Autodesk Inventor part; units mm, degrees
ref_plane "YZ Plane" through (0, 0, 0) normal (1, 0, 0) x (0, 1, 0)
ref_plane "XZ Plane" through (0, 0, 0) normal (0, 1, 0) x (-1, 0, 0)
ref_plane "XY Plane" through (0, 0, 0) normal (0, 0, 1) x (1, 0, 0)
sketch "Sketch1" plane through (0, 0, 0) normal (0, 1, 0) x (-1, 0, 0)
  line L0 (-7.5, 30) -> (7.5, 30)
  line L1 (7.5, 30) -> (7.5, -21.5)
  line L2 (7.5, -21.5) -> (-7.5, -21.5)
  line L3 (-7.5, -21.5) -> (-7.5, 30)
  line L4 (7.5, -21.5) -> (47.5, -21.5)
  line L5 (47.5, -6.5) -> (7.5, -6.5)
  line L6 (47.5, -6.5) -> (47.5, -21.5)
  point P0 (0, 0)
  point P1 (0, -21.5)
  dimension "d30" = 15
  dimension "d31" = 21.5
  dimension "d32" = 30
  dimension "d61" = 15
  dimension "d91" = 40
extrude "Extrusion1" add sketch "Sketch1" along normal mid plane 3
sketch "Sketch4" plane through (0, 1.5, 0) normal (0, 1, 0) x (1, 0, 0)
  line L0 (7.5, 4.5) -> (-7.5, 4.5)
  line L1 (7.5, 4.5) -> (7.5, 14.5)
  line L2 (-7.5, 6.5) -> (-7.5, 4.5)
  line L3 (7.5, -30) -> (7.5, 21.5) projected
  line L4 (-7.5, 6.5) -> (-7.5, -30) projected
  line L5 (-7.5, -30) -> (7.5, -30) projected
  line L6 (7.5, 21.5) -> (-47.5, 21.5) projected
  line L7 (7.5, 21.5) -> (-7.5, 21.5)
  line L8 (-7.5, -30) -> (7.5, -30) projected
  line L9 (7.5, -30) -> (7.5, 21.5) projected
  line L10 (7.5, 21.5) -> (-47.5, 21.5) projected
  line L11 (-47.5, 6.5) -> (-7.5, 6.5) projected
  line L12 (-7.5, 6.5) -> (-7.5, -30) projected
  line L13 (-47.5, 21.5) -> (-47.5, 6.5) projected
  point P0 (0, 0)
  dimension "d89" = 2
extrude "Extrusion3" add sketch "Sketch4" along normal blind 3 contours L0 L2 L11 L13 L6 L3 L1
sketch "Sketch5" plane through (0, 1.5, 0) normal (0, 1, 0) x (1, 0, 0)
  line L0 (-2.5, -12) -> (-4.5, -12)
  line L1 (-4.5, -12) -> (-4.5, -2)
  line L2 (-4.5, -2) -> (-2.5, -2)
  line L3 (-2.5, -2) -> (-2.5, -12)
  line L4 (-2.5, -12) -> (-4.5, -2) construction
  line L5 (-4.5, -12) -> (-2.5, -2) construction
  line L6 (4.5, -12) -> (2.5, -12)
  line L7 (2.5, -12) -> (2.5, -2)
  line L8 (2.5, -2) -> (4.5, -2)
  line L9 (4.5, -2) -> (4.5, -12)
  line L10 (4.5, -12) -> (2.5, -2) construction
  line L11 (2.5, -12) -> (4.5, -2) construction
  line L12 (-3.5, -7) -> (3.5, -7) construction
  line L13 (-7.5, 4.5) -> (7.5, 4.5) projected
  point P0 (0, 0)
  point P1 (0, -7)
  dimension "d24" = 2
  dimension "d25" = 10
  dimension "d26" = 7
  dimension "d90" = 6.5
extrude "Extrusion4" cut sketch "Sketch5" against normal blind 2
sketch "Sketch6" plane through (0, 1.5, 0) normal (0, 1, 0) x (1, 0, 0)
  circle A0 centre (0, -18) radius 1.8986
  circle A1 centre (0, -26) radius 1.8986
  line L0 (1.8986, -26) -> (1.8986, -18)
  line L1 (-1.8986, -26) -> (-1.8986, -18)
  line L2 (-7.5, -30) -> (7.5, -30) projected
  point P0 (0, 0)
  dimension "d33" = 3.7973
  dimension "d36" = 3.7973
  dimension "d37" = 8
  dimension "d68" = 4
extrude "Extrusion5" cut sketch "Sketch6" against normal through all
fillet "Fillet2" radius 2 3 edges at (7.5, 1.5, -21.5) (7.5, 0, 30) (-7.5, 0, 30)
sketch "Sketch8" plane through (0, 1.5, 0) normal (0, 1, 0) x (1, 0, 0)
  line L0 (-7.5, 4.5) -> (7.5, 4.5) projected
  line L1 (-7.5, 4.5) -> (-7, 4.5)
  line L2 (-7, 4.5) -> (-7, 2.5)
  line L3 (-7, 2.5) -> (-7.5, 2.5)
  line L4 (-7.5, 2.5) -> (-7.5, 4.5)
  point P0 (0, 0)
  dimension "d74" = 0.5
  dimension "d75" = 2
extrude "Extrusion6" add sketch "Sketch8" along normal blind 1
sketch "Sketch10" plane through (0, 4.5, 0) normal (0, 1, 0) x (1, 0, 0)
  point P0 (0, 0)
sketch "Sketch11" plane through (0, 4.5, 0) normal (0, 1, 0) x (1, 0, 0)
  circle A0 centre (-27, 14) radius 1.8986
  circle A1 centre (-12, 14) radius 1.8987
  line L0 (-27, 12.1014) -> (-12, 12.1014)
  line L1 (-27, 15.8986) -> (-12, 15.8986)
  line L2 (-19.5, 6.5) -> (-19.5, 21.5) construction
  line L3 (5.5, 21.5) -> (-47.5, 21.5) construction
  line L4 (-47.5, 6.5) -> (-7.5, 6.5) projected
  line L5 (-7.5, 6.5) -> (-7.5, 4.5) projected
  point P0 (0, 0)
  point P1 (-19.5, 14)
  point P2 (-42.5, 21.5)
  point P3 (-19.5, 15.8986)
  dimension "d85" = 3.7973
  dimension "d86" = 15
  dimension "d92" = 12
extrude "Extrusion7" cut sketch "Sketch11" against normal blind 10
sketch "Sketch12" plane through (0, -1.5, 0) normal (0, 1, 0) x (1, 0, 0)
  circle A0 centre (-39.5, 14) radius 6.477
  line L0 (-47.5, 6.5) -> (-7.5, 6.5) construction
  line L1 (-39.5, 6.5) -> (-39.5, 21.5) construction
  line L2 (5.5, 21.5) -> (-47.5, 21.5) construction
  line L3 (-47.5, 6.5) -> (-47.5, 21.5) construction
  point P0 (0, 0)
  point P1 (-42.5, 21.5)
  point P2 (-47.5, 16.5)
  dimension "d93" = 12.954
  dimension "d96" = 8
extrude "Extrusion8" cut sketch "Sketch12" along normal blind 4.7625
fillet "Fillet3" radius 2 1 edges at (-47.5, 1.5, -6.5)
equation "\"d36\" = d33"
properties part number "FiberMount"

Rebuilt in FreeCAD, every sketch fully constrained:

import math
import FreeCAD as App
import Part
import Sketcher


def edges_at(feature, points):
    """Names of the edges that pass closest to the given points."""
    edges = feature.Shape.Edges
    near = lambda p: min(range(len(edges)), key=lambda i: edges[i].distToShape(Part.Vertex(*p))[0])
    return sorted({f"Edge{near(p) + 1}" for p in points})


def add_polygon(sketch, points):
    """Adds a closed chain of lines whose ends are joined by coincident constraints."""
    first, n = sketch.GeometryCount, len(points)
    for a, b in zip(points, points[1:] + points[:1]):
        sketch.addGeometry(Part.LineSegment(App.Vector(*a, 0), App.Vector(*b, 0)), False)
    for i in range(n):
        sketch.addConstraint(Sketcher.Constraint("Coincident", first + i, 2, first + (i + 1) % n, 1))

doc = App.newDocument("Part")
body = doc.addObject("PartDesign::Body", "Body")

sketch1 = body.newObject("Sketcher::SketchObject", "Sketch")
sketch1.AttachmentSupport = (doc.getObject("XZ_Plane"), [""])
sketch1.MapMode = "FlatFace"
add_polygon(sketch1, [(-7.5, 30), (7.5, 30), (7.5, -21.5), (-47.5, -21.5), (-47.5, -6.5), (-7.5, -6.5)])
sketch1.addConstraint([
    Sketcher.Constraint("Horizontal", 0),
    Sketcher.Constraint("Vertical", 1),
    Sketcher.Constraint("Horizontal", 2),
    Sketcher.Constraint("Vertical", 3),
    Sketcher.Constraint("Horizontal", 4),
    Sketcher.Constraint("Vertical", 5),
    Sketcher.Constraint("Equal", 0, 3),
    Sketcher.Constraint("DistanceX", 0, 1, 0, 2, 15.0),
    Sketcher.Constraint("DistanceX", 4, 1, 4, 2, 40.0),
    Sketcher.Constraint("DistanceY", -1, 1, 0, 2, 30.0),
    Sketcher.Constraint("DistanceY", 1, 2, -1, 1, 21.5),
    Sketcher.Constraint("DistanceX", -1, 1, 0, 2, 7.5),
])
pad1 = body.newObject("PartDesign::Pad", "Pad")
pad1.Profile = sketch1
pad1.Length = 3
pad1.Midplane = True

sketch2 = body.newObject("Sketcher::SketchObject", "Sketch001")
sketch2.AttachmentSupport = (doc.getObject("XZ_Plane"), [""])
sketch2.MapMode = "FlatFace"
sketch2.AttachmentOffset = App.Placement(App.Vector(0, 0, -1.5), App.Rotation())
add_polygon(sketch2, [(-7.5, -4.5), (7.5, -4.5), (7.5, -21.5), (-47.5, -21.5), (-47.5, -6.5), (-7.5, -6.5)])
sketch2.addConstraint([
    Sketcher.Constraint("Horizontal", 0),
    Sketcher.Constraint("Vertical", 1),
    Sketcher.Constraint("Horizontal", 2),
    Sketcher.Constraint("Vertical", 3),
    Sketcher.Constraint("Horizontal", 4),
    Sketcher.Constraint("Vertical", 5),
    Sketcher.Constraint("Equal", 0, 3),
    Sketcher.Constraint("DistanceY", 5, 1, 5, 2, 2.0),
    Sketcher.Constraint("DistanceX", 0, 1, 0, 2, 15.0),
    Sketcher.Constraint("DistanceX", 2, 2, 2, 1, 55.0),
    Sketcher.Constraint("DistanceX", -1, 1, 0, 2, 7.5),
    Sketcher.Constraint("DistanceY", 0, 2, -1, 1, 4.5),
])
pad2 = body.newObject("PartDesign::Pad", "Pad001")
pad2.Profile = sketch2
pad2.Length = 3
pad2.Reversed = True

sketch3 = body.newObject("Sketcher::SketchObject", "Sketch002")
sketch3.AttachmentSupport = (doc.getObject("XZ_Plane"), [""])
sketch3.MapMode = "FlatFace"
sketch3.AttachmentOffset = App.Placement(App.Vector(0, 0, -1.5), App.Rotation())
add_polygon(sketch3, [(-4.5, 12), (-2.5, 12), (-2.5, 2), (-4.5, 2)])
add_polygon(sketch3, [(2.5, 12), (4.5, 12), (4.5, 2), (2.5, 2)])
sketch3.addConstraint([
    Sketcher.Constraint("Horizontal", 0),
    Sketcher.Constraint("Vertical", 1),
    Sketcher.Constraint("Horizontal", 2),
    Sketcher.Constraint("Vertical", 3),
    Sketcher.Constraint("Horizontal", 4),
    Sketcher.Constraint("Vertical", 5),
    Sketcher.Constraint("Horizontal", 6),
    Sketcher.Constraint("Vertical", 7),
    Sketcher.Constraint("Symmetric", 3, 2, 4, 2, -2),
    Sketcher.Constraint("Symmetric", 1, 2, 6, 2, -2),
    Sketcher.Constraint("DistanceX", 0, 1, 0, 2, 2.0),
    Sketcher.Constraint("DistanceY", 1, 2, 1, 1, 10.0),
    Sketcher.Constraint("DistanceY", -1, 1, 1, 2, 2.0),
    Sketcher.Constraint("DistanceX", 0, 2, 4, 2, 7.0),
])
pocket1 = body.newObject("PartDesign::Pocket", "Pocket")
pocket1.Profile = sketch3
pocket1.Length = 2
pocket1.Reversed = True

sketch4 = body.newObject("Sketcher::SketchObject", "Sketch003")
sketch4.AttachmentSupport = (doc.getObject("XZ_Plane"), [""])
sketch4.MapMode = "FlatFace"
sketch4.AttachmentOffset = App.Placement(App.Vector(0, 0, -1.5), App.Rotation())
sketch4.addGeometry([
    Part.ArcOfCircle(Part.Circle(App.Vector(0, 18, 0), App.Vector(0, 0, 1), 1.8986), math.radians(180), math.radians(360)),
    Part.LineSegment(App.Vector(-1.8986, 18, 0), App.Vector(-1.8986, 26, 0)),
    Part.ArcOfCircle(Part.Circle(App.Vector(0, 26, 0), App.Vector(0, 0, 1), 1.8986), math.radians(0), math.radians(180)),
    Part.LineSegment(App.Vector(1.8986, 26, 0), App.Vector(1.8986, 18, 0)),
], False)
sketch4.addConstraint([
    Sketcher.Constraint("Tangent", 0, 1, 1, 1),
    Sketcher.Constraint("Tangent", 1, 2, 2, 2),
    Sketcher.Constraint("Tangent", 2, 1, 3, 1),
    Sketcher.Constraint("Tangent", 3, 2, 0, 2),
    Sketcher.Constraint("Vertical", 1),
    Sketcher.Constraint("Vertical", 3),
    Sketcher.Constraint("PointOnObject", 0, 3, -2),
    Sketcher.Constraint("DistanceY", 1, 1, 1, 2, 8.0),
    Sketcher.Constraint("Radius", 0, 1.8986),
    Sketcher.Constraint("DistanceY", -1, 1, 0, 3, 18.0),
])
pocket2 = body.newObject("PartDesign::Pocket", "Pocket001")
pocket2.Profile = sketch4
pocket2.Type = "ThroughAll"
pocket2.Reversed = True
doc.recompute()

fillet = body.newObject("PartDesign::Fillet", "Fillet")
fillet.Base = (pocket2, edges_at(pocket2, [(7.5, 1.5, -21.5), (7.5, 0, 30), (-7.5, 0, 30)]))
fillet.Radius = 2

sketch5 = body.newObject("Sketcher::SketchObject", "Sketch004")
sketch5.AttachmentSupport = (doc.getObject("XZ_Plane"), [""])
sketch5.MapMode = "FlatFace"
sketch5.AttachmentOffset = App.Placement(App.Vector(0, 0, -1.5), App.Rotation())
add_polygon(sketch5, [(-7, -4.5), (-7.5, -4.5), (-7.5, -2.5), (-7, -2.5)])
sketch5.addConstraint([
    Sketcher.Constraint("Horizontal", 0),
    Sketcher.Constraint("Vertical", 1),
    Sketcher.Constraint("Horizontal", 2),
    Sketcher.Constraint("Vertical", 3),
    Sketcher.Constraint("DistanceY", 1, 1, 1, 2, 2.0),
    Sketcher.Constraint("DistanceX", 0, 2, 0, 1, 0.5),
    Sketcher.Constraint("DistanceX", 2, 2, -1, 1, 7.0),
    Sketcher.Constraint("DistanceY", 0, 2, -1, 1, 4.5),
])
pad3 = body.newObject("PartDesign::Pad", "Pad002")
pad3.Profile = sketch5
pad3.Length = 1
pad3.Reversed = True

sketch6 = body.newObject("Sketcher::SketchObject", "Sketch005")
sketch6.AttachmentSupport = (doc.getObject("XZ_Plane"), [""])
sketch6.MapMode = "FlatFace"
sketch6.AttachmentOffset = App.Placement(App.Vector(0, 0, -4.5), App.Rotation())
sketch6.addGeometry([
    Part.ArcOfCircle(Part.Circle(App.Vector(-27, -14, 0), App.Vector(0, 0, 1), 1.8986), math.radians(90), math.radians(270)),
    Part.LineSegment(App.Vector(-27, -12.1014, 0), App.Vector(-12, -12.1014, 0)),
    Part.ArcOfCircle(Part.Circle(App.Vector(-12, -14, 0), App.Vector(0, 0, 1), 1.8987), math.radians(-90), math.radians(90)),
    Part.LineSegment(App.Vector(-12, -15.8986, 0), App.Vector(-27, -15.8986, 0)),
], False)
sketch6.addConstraint([
    Sketcher.Constraint("Tangent", 0, 1, 1, 1),
    Sketcher.Constraint("Tangent", 1, 2, 2, 2),
    Sketcher.Constraint("Tangent", 2, 1, 3, 1),
    Sketcher.Constraint("Tangent", 3, 2, 0, 2),
    Sketcher.Constraint("Horizontal", 1),
    Sketcher.Constraint("Horizontal", 3),
    Sketcher.Constraint("DistanceX", 1, 1, 1, 2, 15.0),
    Sketcher.Constraint("DistanceX", 2, 3, -1, 1, 12.0),
    Sketcher.Constraint("Radius", 0, 1.8986),
    Sketcher.Constraint("DistanceY", 0, 3, -1, 1, 14.0),
])
pocket3 = body.newObject("PartDesign::Pocket", "Pocket002")
pocket3.Profile = sketch6
pocket3.Length = 10
pocket3.Reversed = True

sketch7 = body.newObject("Sketcher::SketchObject", "Sketch006")
sketch7.AttachmentSupport = (doc.getObject("XZ_Plane"), [""])
sketch7.MapMode = "FlatFace"
sketch7.AttachmentOffset = App.Placement(App.Vector(0, 0, 1.5), App.Rotation())
sketch7.addGeometry(Part.Circle(App.Vector(-39.5, -14, 0), App.Vector(0, 0, 1), 6.477), False)
sketch7.addConstraint([
    Sketcher.Constraint("Diameter", 0, 12.954),
    Sketcher.Constraint("DistanceY", 0, 3, -1, 1, 14.0),
    Sketcher.Constraint("DistanceX", 0, 3, -1, 1, 39.5),
])
pocket4 = body.newObject("PartDesign::Pocket", "Pocket003")
pocket4.Profile = sketch7
pocket4.Length = 4.7625
doc.recompute()

fillet2 = body.newObject("PartDesign::Fillet", "Fillet001")
fillet2.Base = (pocket4, edges_at(pocket4, [(-47.5, 1.5, -6.5)]))
fillet2.Radius = 2

doc.recompute()
